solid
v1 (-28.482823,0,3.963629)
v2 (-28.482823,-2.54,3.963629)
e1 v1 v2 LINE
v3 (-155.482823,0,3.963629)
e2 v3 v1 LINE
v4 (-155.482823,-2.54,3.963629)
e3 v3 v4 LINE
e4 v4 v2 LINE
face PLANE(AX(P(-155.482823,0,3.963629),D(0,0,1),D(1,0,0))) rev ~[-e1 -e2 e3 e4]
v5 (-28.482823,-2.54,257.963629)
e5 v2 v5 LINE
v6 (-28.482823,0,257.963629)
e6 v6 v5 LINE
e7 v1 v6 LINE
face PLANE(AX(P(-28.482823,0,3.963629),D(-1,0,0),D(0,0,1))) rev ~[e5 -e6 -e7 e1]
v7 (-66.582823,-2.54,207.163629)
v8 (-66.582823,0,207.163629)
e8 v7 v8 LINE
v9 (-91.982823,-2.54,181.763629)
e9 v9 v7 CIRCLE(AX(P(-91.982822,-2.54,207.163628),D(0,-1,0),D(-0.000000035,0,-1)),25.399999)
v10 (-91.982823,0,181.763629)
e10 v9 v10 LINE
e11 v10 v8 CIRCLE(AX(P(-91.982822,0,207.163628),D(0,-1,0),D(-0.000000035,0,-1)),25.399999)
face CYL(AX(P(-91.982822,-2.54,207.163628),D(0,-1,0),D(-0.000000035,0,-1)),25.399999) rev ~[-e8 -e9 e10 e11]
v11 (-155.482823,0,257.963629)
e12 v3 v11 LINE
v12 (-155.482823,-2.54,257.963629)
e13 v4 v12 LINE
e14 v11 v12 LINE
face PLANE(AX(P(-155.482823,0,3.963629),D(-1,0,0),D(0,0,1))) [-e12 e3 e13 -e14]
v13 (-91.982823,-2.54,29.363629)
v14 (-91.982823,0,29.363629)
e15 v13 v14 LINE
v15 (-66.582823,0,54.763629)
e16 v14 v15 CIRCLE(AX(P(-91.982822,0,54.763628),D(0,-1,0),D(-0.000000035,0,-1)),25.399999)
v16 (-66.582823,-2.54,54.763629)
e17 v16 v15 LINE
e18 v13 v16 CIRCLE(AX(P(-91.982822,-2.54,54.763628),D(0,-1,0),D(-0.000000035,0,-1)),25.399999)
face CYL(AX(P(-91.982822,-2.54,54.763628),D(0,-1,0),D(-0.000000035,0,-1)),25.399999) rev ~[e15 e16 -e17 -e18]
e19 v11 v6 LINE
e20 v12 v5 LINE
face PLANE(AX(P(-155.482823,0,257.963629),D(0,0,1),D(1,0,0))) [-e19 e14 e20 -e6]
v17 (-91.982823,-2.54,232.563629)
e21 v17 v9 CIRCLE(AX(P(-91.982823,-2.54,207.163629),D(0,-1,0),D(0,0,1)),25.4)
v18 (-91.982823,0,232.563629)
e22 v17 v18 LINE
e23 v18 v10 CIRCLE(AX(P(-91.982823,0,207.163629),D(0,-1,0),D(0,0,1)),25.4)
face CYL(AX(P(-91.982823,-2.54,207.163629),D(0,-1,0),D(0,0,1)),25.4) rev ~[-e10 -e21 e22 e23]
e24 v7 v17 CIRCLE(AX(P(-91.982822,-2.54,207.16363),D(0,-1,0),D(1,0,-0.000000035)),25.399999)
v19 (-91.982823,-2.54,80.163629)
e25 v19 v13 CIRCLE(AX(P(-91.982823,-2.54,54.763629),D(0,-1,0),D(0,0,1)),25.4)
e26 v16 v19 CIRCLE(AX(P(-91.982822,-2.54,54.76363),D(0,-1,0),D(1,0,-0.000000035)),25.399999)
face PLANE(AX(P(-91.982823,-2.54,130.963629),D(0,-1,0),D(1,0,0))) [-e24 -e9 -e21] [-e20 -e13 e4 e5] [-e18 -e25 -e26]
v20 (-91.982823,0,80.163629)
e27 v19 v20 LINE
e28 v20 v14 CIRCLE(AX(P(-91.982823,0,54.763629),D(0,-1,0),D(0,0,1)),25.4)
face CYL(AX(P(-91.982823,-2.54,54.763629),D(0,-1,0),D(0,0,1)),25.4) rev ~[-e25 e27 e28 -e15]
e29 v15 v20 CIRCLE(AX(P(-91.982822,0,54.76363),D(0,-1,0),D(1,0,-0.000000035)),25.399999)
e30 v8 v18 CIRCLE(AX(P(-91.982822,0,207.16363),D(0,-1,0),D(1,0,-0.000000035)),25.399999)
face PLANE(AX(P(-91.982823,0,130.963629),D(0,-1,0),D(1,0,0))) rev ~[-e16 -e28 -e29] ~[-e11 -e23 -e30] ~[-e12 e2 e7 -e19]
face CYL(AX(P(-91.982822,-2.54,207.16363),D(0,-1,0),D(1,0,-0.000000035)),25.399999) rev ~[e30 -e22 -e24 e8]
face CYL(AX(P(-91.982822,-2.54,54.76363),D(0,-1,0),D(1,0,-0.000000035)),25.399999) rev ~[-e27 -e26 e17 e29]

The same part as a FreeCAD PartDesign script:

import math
import FreeCAD as App
import Part
import Sketcher
from FreeCAD import Vector
Q = App.Units.Quantity

doc = App.newDocument("Part")
params = doc.addObject("Spreadsheet::Sheet", "Params")
for row, (alias, value) in enumerate([
    ("sketch1_width", "5 in"),
    ("sketch1_height", "10 in"),
    ("pad1_length", "0.1 in"),
    ("sketch2_radius", "1 in"),
    ("pocket1_length", "1 in"),
    ("sketch3_radius", "1 in"),
    ("pocket2_length", "1 in"),
], start=1):
    params.set(f"A{row}", alias)
    params.set(f"B{row}", "=" + value)
    params.setAlias(f"B{row}", alias)

body = doc.addObject("PartDesign::Body", "Body")

# Sketch on XZ plane
sketch1 = doc.addObject("Sketcher::SketchObject", "Sketch")
body.addObject(sketch1)
sketch1.AttachmentSupport = (doc.XZ_Plane, [""])
sketch1.MapMode = "FlatFace"
sketch1.addGeometry([
    Part.LineSegment(Vector(-155.482823, 257.963629, 0), Vector(-155.482823, 3.963629, 0)),
    Part.LineSegment(Vector(-155.482823, 3.963629, 0), Vector(-28.482823, 3.963629, 0)),
    Part.LineSegment(Vector(-28.482823, 3.963629, 0), Vector(-28.482823, 257.963629, 0)),
    Part.LineSegment(Vector(-28.482823, 257.963629, 0), Vector(-155.482823, 257.963629, 0)),
], False)
sketch1.addConstraint([
    Sketcher.Constraint("Coincident", 0, 2, 1, 1),
    Sketcher.Constraint("Coincident", 1, 2, 2, 1),
    Sketcher.Constraint("Coincident", 2, 2, 3, 1),
    Sketcher.Constraint("Coincident", 3, 2, 0, 1),
    Sketcher.Constraint("Vertical", 0),
    Sketcher.Constraint("Horizontal", 1),
    Sketcher.Constraint("Vertical", 2),
    Sketcher.Constraint("Horizontal", 3),
    Sketcher.Constraint("DistanceX", 1, 1, 1, 2, Q("5 in")),
    Sketcher.Constraint("DistanceY", 0, 2, 0, 1, Q("10 in")),
    Sketcher.Constraint("DistanceY", -1, 1, 0, 2, 3.963629),
    Sketcher.Constraint("DistanceX", 0, 2, -1, 1, 155.482823),
])
sketch1.setExpression("Constraints[8]", "Params.sketch1_width")
sketch1.setExpression("Constraints[9]", "Params.sketch1_height")
pad1 = doc.addObject("PartDesign::Pad", "Pad")
body.addObject(pad1)
pad1.Profile = sketch1
pad1.setExpression("Length", "Params.pad1_length")

# Sketch on XZ plane
sketch2 = doc.addObject("Sketcher::SketchObject", "Sketch001")
body.addObject(sketch2)
sketch2.AttachmentSupport = (doc.XZ_Plane, [""])
sketch2.MapMode = "FlatFace"
sketch2.AttachmentOffset = App.Placement(Vector(0, 0, 0.1 * 25.4), App.Rotation())
sketch2.addGeometry([
    Part.ArcOfCircle(Part.Circle(Vector(-91.982823, 207.163629, 0), Vector(0, 0, 1), 25.4), math.radians(90), math.radians(270)),
    Part.ArcOfCircle(Part.Circle(Vector(-91.982822, 207.163628, 0), Vector(0, 0, 1), 25.399999), math.radians(-90.000002), math.radians(0.000002)),
    Part.ArcOfCircle(Part.Circle(Vector(-91.982822, 207.16363, 0), Vector(0, 0, 1), 25.399999), math.radians(-0.000002), math.radians(90.000002)),
], False)
sketch2.addConstraint([
    Sketcher.Constraint("Tangent", 0, 2, 1, 1),
    Sketcher.Constraint("Tangent", 1, 2, 2, 1),
    Sketcher.Constraint("Tangent", 2, 2, 0, 1),
    Sketcher.Constraint("Horizontal", 2, 3, 1, 2),
    Sketcher.Constraint("Vertical", 2, 3, 0, 2),
    Sketcher.Constraint("Vertical", 0, 2, 2, 2),
    Sketcher.Constraint("Radius", 0, Q("1 in")),
    Sketcher.Constraint("DistanceY", -1, 1, 0, 3, 207.163629),
    Sketcher.Constraint("DistanceX", 0, 3, -1, 1, 91.982823),
])
sketch2.setExpression("Constraints[6]", "Params.sketch2_radius")
pocket1 = doc.addObject("PartDesign::Pocket", "Pocket")
body.addObject(pocket1)
pocket1.Profile = sketch2
pocket1.setExpression("Length", "Params.pocket1_length")

# Sketch on XZ plane
sketch3 = doc.addObject("Sketcher::SketchObject", "Sketch002")
body.addObject(sketch3)
sketch3.AttachmentSupport = (doc.XZ_Plane, [""])
sketch3.MapMode = "FlatFace"
sketch3.AttachmentOffset = App.Placement(Vector(0, 0, 0.1 * 25.4), App.Rotation())
sketch3.addGeometry([
    Part.ArcOfCircle(Part.Circle(Vector(-91.982823, 54.763629, 0), Vector(0, 0, 1), 25.4), math.radians(90), math.radians(270)),
    Part.ArcOfCircle(Part.Circle(Vector(-91.982822, 54.763628, 0), Vector(0, 0, 1), 25.399999), math.radians(-90.000002), math.radians(0.000002)),
    Part.ArcOfCircle(Part.Circle(Vector(-91.982822, 54.76363, 0), Vector(0, 0, 1), 25.399999), math.radians(-0.000002), math.radians(90.000002)),
], False)
sketch3.addConstraint([
    Sketcher.Constraint("Tangent", 0, 2, 1, 1),
    Sketcher.Constraint("Tangent", 1, 2, 2, 1),
    Sketcher.Constraint("Tangent", 2, 2, 0, 1),
    Sketcher.Constraint("Horizontal", 2, 3, 1, 2),
    Sketcher.Constraint("Vertical", 2, 3, 0, 2),
    Sketcher.Constraint("Vertical", 0, 2, 2, 2),
    Sketcher.Constraint("Radius", 0, Q("1 in")),
    Sketcher.Constraint("DistanceY", -1, 1, 0, 3, 54.763629),
    Sketcher.Constraint("DistanceX", 0, 3, -1, 1, 91.982823),
])
sketch3.setExpression("Constraints[6]", "Params.sketch3_radius")
pocket2 = doc.addObject("PartDesign::Pocket", "Pocket001")
body.addObject(pocket2)
pocket2.Profile = sketch3
pocket2.setExpression("Length", "Params.pocket2_length")

doc.recompute()
